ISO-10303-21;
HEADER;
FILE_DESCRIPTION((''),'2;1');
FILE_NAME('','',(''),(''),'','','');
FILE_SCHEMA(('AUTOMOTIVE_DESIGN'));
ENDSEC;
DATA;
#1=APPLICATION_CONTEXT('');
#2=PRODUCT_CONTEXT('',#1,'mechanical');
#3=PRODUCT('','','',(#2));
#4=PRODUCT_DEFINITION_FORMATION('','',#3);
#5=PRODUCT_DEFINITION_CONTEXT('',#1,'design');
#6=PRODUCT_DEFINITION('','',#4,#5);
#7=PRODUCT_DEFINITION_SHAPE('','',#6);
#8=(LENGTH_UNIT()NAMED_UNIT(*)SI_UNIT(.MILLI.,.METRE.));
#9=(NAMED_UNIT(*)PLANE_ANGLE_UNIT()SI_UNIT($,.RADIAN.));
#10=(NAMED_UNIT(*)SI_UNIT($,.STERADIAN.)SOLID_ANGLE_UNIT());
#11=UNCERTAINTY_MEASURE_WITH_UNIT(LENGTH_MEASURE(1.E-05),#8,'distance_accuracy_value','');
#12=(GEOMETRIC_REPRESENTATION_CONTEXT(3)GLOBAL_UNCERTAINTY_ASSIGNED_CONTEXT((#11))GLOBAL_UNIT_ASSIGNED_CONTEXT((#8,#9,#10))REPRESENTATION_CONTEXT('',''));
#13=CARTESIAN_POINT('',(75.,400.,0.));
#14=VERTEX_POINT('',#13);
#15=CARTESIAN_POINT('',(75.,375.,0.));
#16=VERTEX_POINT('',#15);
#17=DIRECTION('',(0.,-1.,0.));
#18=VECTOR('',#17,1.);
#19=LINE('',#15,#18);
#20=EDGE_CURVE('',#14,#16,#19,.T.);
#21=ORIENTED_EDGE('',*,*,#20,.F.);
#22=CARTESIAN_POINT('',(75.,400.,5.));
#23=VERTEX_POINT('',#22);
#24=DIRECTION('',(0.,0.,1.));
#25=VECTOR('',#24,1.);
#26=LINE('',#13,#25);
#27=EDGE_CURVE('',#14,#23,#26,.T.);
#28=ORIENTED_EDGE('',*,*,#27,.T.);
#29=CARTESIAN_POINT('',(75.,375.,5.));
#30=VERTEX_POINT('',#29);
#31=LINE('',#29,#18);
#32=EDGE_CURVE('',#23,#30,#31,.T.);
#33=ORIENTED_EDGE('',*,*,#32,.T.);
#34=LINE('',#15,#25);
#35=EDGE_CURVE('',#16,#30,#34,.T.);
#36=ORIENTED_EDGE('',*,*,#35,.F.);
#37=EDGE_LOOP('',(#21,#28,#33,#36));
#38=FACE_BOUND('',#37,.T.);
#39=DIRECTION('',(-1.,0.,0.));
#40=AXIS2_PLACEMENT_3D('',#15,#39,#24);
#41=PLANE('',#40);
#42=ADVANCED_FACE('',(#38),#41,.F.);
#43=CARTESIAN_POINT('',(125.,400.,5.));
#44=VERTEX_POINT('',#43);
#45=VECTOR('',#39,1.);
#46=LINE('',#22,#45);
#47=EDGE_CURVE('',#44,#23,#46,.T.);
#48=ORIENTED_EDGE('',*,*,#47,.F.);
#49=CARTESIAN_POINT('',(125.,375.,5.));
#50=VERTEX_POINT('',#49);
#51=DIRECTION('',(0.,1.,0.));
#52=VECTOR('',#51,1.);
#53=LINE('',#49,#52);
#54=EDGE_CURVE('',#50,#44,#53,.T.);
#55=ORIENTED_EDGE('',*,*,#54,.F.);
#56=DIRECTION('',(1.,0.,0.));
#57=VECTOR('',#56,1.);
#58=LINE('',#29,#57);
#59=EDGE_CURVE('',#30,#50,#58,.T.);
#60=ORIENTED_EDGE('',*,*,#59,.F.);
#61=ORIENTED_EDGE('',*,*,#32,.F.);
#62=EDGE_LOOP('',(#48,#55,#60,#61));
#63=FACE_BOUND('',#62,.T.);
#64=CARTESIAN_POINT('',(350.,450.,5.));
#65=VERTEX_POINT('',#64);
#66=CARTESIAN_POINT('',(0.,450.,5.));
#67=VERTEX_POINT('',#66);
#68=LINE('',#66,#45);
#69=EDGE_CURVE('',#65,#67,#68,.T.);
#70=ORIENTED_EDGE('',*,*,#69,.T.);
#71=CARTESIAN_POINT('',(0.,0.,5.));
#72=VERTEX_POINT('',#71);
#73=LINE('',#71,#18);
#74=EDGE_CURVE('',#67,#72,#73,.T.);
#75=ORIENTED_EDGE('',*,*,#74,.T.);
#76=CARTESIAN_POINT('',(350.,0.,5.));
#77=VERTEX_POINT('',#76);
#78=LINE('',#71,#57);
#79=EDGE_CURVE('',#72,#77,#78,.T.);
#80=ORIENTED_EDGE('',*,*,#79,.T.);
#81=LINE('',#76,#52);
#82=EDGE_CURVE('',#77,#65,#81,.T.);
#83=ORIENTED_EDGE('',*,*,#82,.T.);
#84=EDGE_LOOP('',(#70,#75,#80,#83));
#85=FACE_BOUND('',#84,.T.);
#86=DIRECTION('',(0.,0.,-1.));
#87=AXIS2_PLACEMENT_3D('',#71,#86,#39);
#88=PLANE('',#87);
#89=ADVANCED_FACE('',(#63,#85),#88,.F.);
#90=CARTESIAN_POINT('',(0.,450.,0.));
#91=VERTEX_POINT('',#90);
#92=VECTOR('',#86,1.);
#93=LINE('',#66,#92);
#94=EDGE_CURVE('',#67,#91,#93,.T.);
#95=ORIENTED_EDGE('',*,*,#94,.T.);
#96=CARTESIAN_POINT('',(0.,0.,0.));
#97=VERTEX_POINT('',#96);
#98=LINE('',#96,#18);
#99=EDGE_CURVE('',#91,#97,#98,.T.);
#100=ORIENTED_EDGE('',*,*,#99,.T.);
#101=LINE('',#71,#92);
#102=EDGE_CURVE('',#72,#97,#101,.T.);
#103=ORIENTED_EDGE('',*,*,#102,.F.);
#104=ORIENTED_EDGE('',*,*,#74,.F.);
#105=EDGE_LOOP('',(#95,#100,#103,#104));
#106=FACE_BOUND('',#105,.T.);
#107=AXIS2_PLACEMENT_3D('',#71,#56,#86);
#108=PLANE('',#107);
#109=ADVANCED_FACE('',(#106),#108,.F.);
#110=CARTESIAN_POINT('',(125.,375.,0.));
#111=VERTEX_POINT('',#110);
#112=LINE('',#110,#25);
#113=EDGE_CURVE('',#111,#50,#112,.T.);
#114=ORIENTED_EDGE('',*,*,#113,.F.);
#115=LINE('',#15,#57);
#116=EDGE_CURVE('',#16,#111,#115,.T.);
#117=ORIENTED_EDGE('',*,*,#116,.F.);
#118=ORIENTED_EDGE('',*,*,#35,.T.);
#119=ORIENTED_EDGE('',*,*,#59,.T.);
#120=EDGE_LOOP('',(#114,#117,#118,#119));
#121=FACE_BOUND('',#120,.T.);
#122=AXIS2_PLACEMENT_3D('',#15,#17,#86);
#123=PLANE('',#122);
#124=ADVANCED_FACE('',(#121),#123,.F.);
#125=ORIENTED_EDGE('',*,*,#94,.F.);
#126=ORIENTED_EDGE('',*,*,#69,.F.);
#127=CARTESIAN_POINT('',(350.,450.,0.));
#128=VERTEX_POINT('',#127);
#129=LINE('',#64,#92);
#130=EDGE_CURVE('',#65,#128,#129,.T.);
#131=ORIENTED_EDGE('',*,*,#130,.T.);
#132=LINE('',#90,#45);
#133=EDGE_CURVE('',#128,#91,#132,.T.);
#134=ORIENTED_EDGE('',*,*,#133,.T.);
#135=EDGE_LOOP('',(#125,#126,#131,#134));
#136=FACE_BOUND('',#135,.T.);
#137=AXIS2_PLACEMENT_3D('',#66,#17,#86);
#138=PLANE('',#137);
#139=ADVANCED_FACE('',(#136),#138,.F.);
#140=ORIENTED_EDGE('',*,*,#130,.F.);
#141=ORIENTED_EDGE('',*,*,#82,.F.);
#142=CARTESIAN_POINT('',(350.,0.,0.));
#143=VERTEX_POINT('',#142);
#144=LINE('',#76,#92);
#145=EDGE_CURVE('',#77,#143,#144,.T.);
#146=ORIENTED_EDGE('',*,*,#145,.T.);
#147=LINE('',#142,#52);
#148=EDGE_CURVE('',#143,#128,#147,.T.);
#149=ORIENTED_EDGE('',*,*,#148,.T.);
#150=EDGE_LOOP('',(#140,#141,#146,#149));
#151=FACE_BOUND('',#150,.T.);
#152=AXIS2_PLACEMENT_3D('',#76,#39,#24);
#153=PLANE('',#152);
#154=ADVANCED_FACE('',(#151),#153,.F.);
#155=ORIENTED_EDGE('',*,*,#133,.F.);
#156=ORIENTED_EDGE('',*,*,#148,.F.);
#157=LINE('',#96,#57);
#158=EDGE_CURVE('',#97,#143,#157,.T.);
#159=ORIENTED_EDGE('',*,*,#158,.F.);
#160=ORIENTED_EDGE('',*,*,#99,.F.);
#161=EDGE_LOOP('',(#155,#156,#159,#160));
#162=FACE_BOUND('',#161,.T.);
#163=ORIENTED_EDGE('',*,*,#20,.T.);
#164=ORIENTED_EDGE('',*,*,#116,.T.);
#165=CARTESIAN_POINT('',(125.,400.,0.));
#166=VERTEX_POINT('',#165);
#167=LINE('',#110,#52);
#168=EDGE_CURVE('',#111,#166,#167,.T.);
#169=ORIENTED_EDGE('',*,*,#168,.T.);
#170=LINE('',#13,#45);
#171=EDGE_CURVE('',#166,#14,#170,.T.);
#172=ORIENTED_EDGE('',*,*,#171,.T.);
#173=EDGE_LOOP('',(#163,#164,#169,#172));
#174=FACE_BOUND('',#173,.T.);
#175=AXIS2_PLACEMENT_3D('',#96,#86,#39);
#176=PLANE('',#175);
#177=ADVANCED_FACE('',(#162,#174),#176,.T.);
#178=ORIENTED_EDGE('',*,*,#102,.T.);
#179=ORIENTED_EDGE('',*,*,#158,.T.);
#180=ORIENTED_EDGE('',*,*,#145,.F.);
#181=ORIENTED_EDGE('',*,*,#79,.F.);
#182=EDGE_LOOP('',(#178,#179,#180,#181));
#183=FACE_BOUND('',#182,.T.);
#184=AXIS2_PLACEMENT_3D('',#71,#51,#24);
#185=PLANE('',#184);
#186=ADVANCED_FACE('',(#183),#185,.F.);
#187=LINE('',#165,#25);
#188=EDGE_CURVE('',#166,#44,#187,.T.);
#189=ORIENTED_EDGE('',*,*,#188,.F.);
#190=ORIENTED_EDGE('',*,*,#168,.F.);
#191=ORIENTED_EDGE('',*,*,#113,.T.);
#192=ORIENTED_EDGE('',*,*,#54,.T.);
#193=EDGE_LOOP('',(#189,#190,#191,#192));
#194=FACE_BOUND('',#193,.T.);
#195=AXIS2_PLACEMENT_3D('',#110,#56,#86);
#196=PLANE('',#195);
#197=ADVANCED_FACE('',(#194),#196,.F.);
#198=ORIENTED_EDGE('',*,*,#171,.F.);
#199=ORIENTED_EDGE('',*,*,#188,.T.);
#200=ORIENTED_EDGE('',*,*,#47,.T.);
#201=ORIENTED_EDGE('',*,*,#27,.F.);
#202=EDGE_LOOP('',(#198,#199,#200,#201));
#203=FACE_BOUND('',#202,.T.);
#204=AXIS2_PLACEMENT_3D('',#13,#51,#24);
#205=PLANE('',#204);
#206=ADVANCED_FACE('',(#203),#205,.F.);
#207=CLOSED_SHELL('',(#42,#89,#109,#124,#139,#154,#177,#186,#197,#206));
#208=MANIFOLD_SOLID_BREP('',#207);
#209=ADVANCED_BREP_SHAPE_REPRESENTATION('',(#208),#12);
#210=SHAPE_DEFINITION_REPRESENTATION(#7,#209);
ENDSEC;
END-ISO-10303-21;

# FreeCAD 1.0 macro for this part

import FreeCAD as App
import Part
import Sketcher

V = App.Vector


def add_polygon(sketch, points):
    """Adds a closed chain of lines whose ends are joined by coincident constraints."""
    first, n = sketch.GeometryCount, len(points)
    for a, b in zip(points, points[1:] + points[:1]):
        sketch.addGeometry(Part.LineSegment(App.Vector(*a, 0), App.Vector(*b, 0)), False)
    for i in range(n):
        sketch.addConstraint(Sketcher.Constraint("Coincident", first + i, 2, first + (i + 1) % n, 1))

doc = App.newDocument("Part")
params = doc.addObject("Spreadsheet::Sheet", "Params")
for row, (alias, value) in enumerate([
    ("sketch1_width", "350 mm"),
    ("sketch1_height", "450 mm"),
    ("pad1_length", "5 mm"),
    ("sketch2_width", "50 mm"),
    ("sketch2_height", "25 mm"),
], start=1):
    params.set(f"A{row}", alias)
    params.set(f"B{row}", "=" + value)
    params.setAlias(f"B{row}", alias)

body = doc.addObject("PartDesign::Body", "Body")

sketch1 = doc.addObject("Sketcher::SketchObject", "Sketch")
body.addObject(sketch1)
sketch1.AttachmentSupport = (doc.XY_Plane, [""])
sketch1.MapMode = "FlatFace"
add_polygon(sketch1, [(0, 450), (0, 0), (350, 0), (350, 450)])
sketch1.addConstraint([
    Sketcher.Constraint("Vertical", 0),
    Sketcher.Constraint("Horizontal", 1),
    Sketcher.Constraint("Vertical", 2),
    Sketcher.Constraint("Horizontal", 3),
    Sketcher.Constraint("Coincident", 0, 2, -1, 1),
    Sketcher.Constraint("DistanceX", 1, 1, 1, 2, 350.0),
    Sketcher.Constraint("DistanceY", 0, 2, 0, 1, 450.0),
])
sketch1.setExpression("Constraints[9]", "Params.sketch1_width")
sketch1.setExpression("Constraints[10]", "Params.sketch1_height")
pad1 = doc.addObject("PartDesign::Pad", "Pad")
body.addObject(pad1)
pad1.Profile = sketch1
pad1.setExpression("Length", "Params.pad1_length")

sketch2 = doc.addObject("Sketcher::SketchObject", "Sketch001")
body.addObject(sketch2)
sketch2.AttachmentSupport = (doc.XY_Plane, [""])
sketch2.MapMode = "FlatFace"
sketch2.AttachmentOffset = App.Placement(V(0, 0, 5), App.Rotation())
add_polygon(sketch2, [(75, 400), (75, 375), (125, 375), (125, 400)])
sketch2.addConstraint([
    Sketcher.Constraint("Vertical", 0),
    Sketcher.Constraint("Horizontal", 1),
    Sketcher.Constraint("Vertical", 2),
    Sketcher.Constraint("Horizontal", 3),
    Sketcher.Constraint("DistanceX", 1, 1, 1, 2, 50.0),
    Sketcher.Constraint("DistanceY", 0, 2, 0, 1, 25.0),
    Sketcher.Constraint("DistanceX", -1, 1, 0, 2, 75.0),
    Sketcher.Constraint("DistanceY", -1, 1, 0, 2, 375.0),
])
sketch2.setExpression("Constraints[8]", "Params.sketch2_width")
sketch2.setExpression("Constraints[9]", "Params.sketch2_height")
pocket1 = doc.addObject("PartDesign::Pocket", "Pocket")
body.addObject(pocket1)
pocket1.Profile = sketch2
pocket1.Type = "ThroughAll"

doc.recompute()
